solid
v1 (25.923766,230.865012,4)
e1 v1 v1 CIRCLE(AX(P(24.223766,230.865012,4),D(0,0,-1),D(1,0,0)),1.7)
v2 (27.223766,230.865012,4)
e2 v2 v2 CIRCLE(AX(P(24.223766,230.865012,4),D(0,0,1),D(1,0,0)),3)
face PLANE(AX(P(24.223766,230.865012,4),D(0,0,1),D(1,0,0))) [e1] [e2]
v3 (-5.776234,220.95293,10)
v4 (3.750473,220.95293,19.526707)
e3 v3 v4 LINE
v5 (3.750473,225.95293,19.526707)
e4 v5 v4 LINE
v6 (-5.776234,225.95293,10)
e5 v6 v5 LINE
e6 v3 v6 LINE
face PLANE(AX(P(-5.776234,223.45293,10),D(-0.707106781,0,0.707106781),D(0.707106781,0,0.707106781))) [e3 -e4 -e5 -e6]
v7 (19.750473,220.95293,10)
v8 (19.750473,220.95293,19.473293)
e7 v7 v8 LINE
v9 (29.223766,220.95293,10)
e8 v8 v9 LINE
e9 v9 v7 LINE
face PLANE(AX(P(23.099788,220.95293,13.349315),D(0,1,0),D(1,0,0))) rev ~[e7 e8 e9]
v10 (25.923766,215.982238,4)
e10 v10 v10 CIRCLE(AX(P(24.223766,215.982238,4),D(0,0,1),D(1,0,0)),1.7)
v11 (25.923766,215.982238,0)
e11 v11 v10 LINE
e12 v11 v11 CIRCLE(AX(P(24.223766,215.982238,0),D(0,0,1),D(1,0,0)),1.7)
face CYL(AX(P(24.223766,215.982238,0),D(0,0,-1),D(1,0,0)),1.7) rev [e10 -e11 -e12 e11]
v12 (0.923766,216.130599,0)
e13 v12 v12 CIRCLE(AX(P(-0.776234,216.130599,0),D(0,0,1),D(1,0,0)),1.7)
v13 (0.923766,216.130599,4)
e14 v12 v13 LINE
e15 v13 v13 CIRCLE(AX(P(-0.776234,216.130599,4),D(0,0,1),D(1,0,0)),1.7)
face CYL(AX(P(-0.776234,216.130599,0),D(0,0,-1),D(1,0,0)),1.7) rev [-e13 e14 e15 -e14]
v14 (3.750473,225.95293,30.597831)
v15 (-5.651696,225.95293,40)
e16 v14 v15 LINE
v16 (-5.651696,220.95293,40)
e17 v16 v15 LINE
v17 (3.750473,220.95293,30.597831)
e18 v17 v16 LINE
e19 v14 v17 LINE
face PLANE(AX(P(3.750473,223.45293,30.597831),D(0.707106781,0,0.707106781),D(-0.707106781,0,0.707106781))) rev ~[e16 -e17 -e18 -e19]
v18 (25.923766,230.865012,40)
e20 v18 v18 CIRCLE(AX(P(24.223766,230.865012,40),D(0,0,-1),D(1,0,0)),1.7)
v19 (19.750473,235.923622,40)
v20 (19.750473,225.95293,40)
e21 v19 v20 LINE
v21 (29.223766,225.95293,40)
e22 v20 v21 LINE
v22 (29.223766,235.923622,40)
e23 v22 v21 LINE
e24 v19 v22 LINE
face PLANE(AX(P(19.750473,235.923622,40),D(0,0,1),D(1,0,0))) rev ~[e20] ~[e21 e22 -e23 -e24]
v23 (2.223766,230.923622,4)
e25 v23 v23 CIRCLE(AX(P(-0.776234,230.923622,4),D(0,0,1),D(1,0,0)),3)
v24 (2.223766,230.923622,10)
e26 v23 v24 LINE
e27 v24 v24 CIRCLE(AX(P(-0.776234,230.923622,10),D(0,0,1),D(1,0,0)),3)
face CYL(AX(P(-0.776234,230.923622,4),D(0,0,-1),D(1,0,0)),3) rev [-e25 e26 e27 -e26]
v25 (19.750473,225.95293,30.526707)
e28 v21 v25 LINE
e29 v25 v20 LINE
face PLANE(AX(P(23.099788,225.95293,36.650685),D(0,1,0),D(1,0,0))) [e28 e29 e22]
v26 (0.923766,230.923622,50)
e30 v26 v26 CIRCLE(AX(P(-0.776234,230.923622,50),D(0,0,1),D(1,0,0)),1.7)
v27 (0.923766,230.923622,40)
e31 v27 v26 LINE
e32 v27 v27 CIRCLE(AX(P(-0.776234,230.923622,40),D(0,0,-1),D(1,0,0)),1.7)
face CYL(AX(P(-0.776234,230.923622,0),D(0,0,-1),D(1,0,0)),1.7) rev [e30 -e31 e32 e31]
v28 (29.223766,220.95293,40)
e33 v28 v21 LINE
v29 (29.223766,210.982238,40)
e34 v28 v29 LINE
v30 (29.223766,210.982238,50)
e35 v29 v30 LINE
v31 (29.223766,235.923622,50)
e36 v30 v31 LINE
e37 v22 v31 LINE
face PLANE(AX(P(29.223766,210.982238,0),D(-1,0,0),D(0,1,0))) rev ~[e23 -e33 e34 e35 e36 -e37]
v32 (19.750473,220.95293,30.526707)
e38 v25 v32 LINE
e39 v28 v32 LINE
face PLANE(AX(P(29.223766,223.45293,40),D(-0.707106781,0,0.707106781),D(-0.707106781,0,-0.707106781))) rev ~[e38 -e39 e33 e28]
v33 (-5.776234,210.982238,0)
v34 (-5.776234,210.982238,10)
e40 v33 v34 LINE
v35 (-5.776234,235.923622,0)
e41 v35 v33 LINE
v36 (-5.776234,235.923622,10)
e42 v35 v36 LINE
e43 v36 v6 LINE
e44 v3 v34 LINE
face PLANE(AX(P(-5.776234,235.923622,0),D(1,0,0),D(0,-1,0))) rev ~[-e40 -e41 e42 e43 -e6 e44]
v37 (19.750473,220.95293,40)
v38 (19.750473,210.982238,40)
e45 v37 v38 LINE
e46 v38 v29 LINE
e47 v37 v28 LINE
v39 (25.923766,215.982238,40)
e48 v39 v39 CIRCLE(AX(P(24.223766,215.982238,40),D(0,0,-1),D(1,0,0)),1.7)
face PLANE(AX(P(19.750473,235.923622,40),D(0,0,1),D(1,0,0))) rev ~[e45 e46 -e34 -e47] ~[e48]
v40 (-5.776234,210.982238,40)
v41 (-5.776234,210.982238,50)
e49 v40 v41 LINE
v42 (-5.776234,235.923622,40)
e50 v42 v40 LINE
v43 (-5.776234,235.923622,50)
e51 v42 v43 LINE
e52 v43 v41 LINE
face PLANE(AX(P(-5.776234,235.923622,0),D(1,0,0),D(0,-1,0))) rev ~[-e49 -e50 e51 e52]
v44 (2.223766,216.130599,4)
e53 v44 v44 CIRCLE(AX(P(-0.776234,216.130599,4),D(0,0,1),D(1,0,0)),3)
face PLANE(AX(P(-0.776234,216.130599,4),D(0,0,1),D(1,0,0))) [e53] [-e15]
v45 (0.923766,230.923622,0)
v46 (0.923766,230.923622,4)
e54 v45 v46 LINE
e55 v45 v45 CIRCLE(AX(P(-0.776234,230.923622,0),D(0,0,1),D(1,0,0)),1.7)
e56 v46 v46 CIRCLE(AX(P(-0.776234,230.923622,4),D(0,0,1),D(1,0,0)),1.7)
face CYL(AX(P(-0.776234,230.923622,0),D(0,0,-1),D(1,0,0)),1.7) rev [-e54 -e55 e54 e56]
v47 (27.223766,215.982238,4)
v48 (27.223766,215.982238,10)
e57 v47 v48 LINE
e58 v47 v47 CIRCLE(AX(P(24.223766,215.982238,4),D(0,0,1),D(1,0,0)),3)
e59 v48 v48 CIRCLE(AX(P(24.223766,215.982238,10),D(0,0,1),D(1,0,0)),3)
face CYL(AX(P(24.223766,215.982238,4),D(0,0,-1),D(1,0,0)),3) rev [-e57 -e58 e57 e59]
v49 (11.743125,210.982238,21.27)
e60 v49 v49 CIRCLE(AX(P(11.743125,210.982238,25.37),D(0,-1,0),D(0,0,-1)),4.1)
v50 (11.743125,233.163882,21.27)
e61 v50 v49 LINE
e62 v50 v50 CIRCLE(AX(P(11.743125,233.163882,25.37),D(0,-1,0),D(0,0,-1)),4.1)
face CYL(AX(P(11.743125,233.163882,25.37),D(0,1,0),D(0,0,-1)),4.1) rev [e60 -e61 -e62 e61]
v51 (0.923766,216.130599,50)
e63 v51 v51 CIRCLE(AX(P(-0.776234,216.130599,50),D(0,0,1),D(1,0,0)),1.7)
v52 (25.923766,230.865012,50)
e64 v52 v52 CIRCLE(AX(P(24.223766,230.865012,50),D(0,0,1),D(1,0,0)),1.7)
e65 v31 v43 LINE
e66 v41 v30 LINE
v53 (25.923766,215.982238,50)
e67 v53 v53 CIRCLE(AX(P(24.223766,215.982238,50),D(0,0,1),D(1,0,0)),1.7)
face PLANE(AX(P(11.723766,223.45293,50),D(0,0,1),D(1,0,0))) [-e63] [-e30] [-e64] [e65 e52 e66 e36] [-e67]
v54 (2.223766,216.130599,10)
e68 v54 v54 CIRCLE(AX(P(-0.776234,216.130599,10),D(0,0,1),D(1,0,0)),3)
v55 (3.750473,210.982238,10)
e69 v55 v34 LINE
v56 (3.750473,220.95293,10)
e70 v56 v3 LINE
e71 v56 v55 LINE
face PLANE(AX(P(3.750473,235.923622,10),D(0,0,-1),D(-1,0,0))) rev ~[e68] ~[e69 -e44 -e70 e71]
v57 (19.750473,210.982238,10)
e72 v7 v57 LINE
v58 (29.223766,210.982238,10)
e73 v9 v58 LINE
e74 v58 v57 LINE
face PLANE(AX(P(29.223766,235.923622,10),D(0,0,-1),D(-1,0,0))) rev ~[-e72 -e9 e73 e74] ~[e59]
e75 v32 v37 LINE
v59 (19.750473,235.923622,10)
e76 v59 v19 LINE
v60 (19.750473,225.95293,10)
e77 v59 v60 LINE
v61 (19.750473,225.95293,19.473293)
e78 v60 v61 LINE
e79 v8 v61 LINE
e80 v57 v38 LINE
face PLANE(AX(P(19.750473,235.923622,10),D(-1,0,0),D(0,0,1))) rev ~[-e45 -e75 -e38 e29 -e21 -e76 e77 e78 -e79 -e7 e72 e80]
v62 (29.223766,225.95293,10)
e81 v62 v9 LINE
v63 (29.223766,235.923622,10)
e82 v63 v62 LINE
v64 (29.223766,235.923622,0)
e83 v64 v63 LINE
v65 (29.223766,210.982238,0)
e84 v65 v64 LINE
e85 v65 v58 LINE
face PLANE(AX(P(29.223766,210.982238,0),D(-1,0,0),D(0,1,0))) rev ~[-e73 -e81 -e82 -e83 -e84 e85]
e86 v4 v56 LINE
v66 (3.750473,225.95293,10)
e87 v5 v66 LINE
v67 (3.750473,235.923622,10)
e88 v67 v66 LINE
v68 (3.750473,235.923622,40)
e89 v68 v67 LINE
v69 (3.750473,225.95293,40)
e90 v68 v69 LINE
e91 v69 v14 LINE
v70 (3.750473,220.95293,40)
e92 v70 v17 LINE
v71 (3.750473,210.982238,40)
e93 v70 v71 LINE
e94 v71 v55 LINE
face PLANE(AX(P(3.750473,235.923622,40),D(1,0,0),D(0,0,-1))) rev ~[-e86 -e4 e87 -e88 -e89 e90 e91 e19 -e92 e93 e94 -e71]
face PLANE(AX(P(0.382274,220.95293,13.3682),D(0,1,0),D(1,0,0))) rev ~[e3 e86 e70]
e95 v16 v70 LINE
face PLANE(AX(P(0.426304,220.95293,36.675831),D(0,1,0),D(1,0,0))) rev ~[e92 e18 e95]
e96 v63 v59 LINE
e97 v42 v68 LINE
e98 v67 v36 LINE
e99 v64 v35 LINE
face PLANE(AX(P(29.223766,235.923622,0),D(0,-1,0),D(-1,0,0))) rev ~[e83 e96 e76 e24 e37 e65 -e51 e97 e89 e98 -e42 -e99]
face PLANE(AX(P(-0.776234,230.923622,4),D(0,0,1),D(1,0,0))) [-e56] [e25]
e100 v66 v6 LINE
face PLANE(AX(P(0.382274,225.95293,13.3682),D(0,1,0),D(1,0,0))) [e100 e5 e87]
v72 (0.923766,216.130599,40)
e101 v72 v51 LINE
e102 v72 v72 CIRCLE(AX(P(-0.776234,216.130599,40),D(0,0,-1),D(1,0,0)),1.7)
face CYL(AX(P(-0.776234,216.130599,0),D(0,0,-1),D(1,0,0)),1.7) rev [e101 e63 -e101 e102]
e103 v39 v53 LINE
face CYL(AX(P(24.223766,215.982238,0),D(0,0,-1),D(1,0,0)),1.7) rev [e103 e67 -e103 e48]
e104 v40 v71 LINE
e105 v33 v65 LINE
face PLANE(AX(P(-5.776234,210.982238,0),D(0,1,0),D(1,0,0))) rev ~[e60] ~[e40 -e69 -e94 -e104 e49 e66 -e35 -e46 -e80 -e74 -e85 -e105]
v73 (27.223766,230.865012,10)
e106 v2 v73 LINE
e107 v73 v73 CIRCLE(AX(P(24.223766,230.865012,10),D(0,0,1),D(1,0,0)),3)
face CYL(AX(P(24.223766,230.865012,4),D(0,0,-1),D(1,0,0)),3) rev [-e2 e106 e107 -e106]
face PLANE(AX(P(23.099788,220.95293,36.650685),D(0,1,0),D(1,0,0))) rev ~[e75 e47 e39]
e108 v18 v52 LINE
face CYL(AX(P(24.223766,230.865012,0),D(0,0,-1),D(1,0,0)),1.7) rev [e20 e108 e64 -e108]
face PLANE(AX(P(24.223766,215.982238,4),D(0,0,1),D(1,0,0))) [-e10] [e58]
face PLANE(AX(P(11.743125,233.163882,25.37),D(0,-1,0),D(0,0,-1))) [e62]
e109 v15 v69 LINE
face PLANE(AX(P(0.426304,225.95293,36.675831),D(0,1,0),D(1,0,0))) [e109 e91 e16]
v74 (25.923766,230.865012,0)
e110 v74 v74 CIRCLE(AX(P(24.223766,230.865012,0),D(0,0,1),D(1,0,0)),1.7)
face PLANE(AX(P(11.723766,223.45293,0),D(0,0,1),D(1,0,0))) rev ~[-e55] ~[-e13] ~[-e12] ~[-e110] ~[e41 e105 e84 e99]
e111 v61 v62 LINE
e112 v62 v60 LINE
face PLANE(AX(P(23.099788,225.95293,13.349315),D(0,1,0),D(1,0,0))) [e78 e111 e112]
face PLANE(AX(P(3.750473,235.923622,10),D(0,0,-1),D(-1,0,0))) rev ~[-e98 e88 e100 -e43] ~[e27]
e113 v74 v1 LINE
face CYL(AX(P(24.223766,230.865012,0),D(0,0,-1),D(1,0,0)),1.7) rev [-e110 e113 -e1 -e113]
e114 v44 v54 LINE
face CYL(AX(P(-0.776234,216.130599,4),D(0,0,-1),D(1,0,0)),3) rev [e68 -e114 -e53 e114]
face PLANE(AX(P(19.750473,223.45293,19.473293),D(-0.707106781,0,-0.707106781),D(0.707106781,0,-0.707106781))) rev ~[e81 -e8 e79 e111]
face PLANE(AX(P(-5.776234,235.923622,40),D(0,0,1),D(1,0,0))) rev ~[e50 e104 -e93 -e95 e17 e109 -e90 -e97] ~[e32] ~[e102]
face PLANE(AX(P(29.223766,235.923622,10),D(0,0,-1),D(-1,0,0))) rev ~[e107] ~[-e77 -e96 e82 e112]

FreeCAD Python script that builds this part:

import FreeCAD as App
import Part
import Sketcher
from FreeCAD import Vector
Q = App.Units.Quantity


def add_polygon(sketch, points):
    """Adds a closed chain of lines whose ends are joined by coincident constraints."""
    first, n = sketch.GeometryCount, len(points)
    for a, b in zip(points, points[1:] + points[:1]):
        sketch.addGeometry(Part.LineSegment(App.Vector(*a, 0), App.Vector(*b, 0)), False)
    for i in range(n):
        sketch.addConstraint(Sketcher.Constraint("Coincident", first + i, 2, first + (i + 1) % n, 1))

doc = App.newDocument("Part")
body = doc.addObject("PartDesign::Body", "Body")

sketch1 = body.newObject("Sketcher::SketchObject", "Sketch")
sketch1.AttachmentSupport = (doc.getObject("XY_Plane"), [""])
sketch1.MapMode = "FlatFace"
add_polygon(sketch1, [(29.2, 235.9), (-5.8, 235.9), (-5.8, 211), (29.2, 211)])
sketch1.addGeometry(Part.Circle(Vector(-0.8, 216.1, 0), Vector(0, 0, 1), 1.7), False)
sketch1.addGeometry(Part.Circle(Vector(24.2, 216, 0), Vector(0, 0, 1), 1.7), False)
sketch1.addGeometry(Part.Circle(Vector(-0.8, 230.9, 0), Vector(0, 0, 1), 1.7), False)
sketch1.addGeometry(Part.Circle(Vector(24.2, 230.9, 0), Vector(0, 0, 1), 1.7), False)
sketch1.addConstraint([
    Sketcher.Constraint("Horizontal", 0),
    Sketcher.Constraint("Vertical", 1),
    Sketcher.Constraint("Horizontal", 2),
    Sketcher.Constraint("Vertical", 3),
    Sketcher.Constraint("Equal", 4, 5),
    Sketcher.Constraint("Equal", 5, 6),
    Sketcher.Constraint("Equal", 6, 7),
    Sketcher.Constraint("Vertical", 4, 3, 6, 3),
    Sketcher.Constraint("Vertical", 5, 3, 7, 3),
    Sketcher.Constraint("Diameter", 4, Q("3.4 mm")),
    Sketcher.Constraint("DistanceX", 0, 2, 0, 1, Q("35 mm")),
    Sketcher.Constraint("DistanceX", 4, 3, 5, 3, Q("25 mm")),
    Sketcher.Constraint("DistanceX", 0, 2, 6, 3, Q("5 mm")),
    Sketcher.Constraint("DistanceY", 6, 3, 0, 2, Q("5 mm")),
    Sketcher.Constraint("DistanceY", 1, 2, 5, 3, Q("5 mm")),
    Sketcher.Constraint("DistanceY", -1, 1, 4, 3, Q("216.130599 mm")),
    Sketcher.Constraint("DistanceY", 1, 2, 1, 1, Q("24.941384 mm")),
    Sketcher.Constraint("DistanceY", -1, 1, 5, 3, Q("215.982238 mm")),
    Sketcher.Constraint("DistanceY", 7, 3, 6, 3, Q("0.05861 mm")),
    Sketcher.Constraint("DistanceX", 4, 3, -1, 1, Q("0.776234 mm")),
])
pad1 = body.newObject("PartDesign::Pad", "Pad")
pad1.Profile = sketch1
pad1.Length = 50

sketch2 = body.newObject("Sketcher::SketchObject", "Sketch001")
sketch2.AttachmentSupport = (doc.getObject("XZ_Plane"), [""])
sketch2.MapMode = "FlatFace"
sketch2.AttachmentOffset = App.Placement(Vector(0, 0, -235.923622), App.Rotation())
add_polygon(sketch2, [(4, 40), (4, 10), (-6, 10), (-6, 40)])
add_polygon(sketch2, [(29, 10), (20, 10), (20, 40), (29, 40)])
sketch2.addConstraint([
    Sketcher.Constraint("Vertical", 0),
    Sketcher.Constraint("Horizontal", 1),
    Sketcher.Constraint("Vertical", 2),
    Sketcher.Constraint("Horizontal", 3),
    Sketcher.Constraint("Horizontal", 4),
    Sketcher.Constraint("Vertical", 5),
    Sketcher.Constraint("Horizontal", 6),
    Sketcher.Constraint("Vertical", 7),
    Sketcher.Constraint("Horizontal", 1, 2, 4, 2),
    Sketcher.Constraint("Horizontal", 3, 2, 5, 2),
    Sketcher.Constraint("DistanceY", 0, 2, 0, 1, Q("30 mm")),
    Sketcher.Constraint("DistanceY", -1, 1, 0, 2, Q("10 mm")),
    Sketcher.Constraint("DistanceX", 0, 2, 4, 2, Q("16 mm")),
    Sketcher.Constraint("DistanceX", 2, 2, 6, 2, Q("35 mm")),
    Sketcher.Constraint("DistanceX", 1, 2, 1, 1, Q("9.526707 mm")),
    Sketcher.Constraint("DistanceX", -1, 1, 0, 2, Q("3.750473 mm")),
])
pocket1 = body.newObject("PartDesign::Pocket", "Pocket")
pocket1.Profile = sketch2
pocket1.Length = 51
pocket1.Reversed = True

sketch3 = body.newObject("Sketcher::SketchObject", "Sketch002")
sketch3.AttachmentSupport = (doc.getObject("XZ_Plane"), [""])
sketch3.MapMode = "FlatFace"
sketch3.AttachmentOffset = App.Placement(Vector(0, 0, -233.163882), App.Rotation())
sketch3.addGeometry(Part.Circle(Vector(11.7, 25.4, 0), Vector(0, 0, 1), 4.1), False)
sketch3.addConstraint([
    Sketcher.Constraint("Diameter", 0, Q("8.2 mm")),
    Sketcher.Constraint("DistanceY", -1, 1, 0, 3, Q("25.37 mm")),
    Sketcher.Constraint("DistanceX", -1, 1, 0, 3, Q("11.743125 mm")),
])
pocket2 = body.newObject("PartDesign::Pocket", "Pocket001")
pocket2.Profile = sketch3
pocket2.Length = 22.181644
pocket2.Reversed = True

sketch4 = body.newObject("Sketcher::SketchObject", "Sketch003")
sketch4.AttachmentSupport = (doc.getObject("XY_Plane"), [""])
sketch4.MapMode = "FlatFace"
sketch4.AttachmentOffset = App.Placement(Vector(0, 0, 4), App.Rotation())
sketch4.addGeometry([
    Part.Circle(Vector(24.2, 230.9, 0), Vector(0, 0, 1), 3),
    Part.Circle(Vector(24.2, 216, 0), Vector(0, 0, 1), 3),
    Part.Circle(Vector(24.2, 216, 0), Vector(0, 0, 1), 1.7),
    Part.Circle(Vector(-0.8, 216.1, 0), Vector(0, 0, 1), 3),
    Part.Circle(Vector(-0.8, 216.1, 0), Vector(0, 0, 1), 1.7),
    Part.Circle(Vector(-0.8, 230.9, 0), Vector(0, 0, 1), 3),
    Part.Circle(Vector(-0.8, 230.9, 0), Vector(0, 0, 1), 1.7),
], False)
sketch4.addConstraint([
    Sketcher.Constraint("Coincident", 2, 3, 1, 3),
    Sketcher.Constraint("Coincident", 4, 3, 3, 3),
    Sketcher.Constraint("Coincident", 6, 3, 5, 3),
    Sketcher.Constraint("Equal", 0, 1),
    Sketcher.Constraint("Equal", 1, 3),
    Sketcher.Constraint("Equal", 2, 4),
    Sketcher.Constraint("Equal", 3, 5),
    Sketcher.Constraint("Equal", 4, 6),
    Sketcher.Constraint("Vertical", 0, 3, 1, 3),
    Sketcher.Constraint("Vertical", 4, 3, 5, 3),
    Sketcher.Constraint("Diameter", 0, Q("6 mm")),
    Sketcher.Constraint("Diameter", 2, Q("3.4 mm")),
    Sketcher.Constraint("DistanceX", 3, 3, 1, 3, Q("25 mm")),
    Sketcher.Constraint("DistanceY", -1, 1, 3, 3, Q("216.130599 mm")),
    Sketcher.Constraint("DistanceY", -1, 1, 1, 3, Q("215.982238 mm")),
    Sketcher.Constraint("DistanceY", 0, 3, 5, 3, Q("0.05861 mm")),
    Sketcher.Constraint("DistanceX", -1, 1, 0, 3, Q("24.223766 mm")),
    Sketcher.Constraint("DistanceY", -1, 1, 0, 3, Q("230.865012 mm")),
])
pocket3 = body.newObject("PartDesign::Pocket", "Pocket002")
pocket3.Profile = sketch4
pocket3.Length = 6
pocket3.Reversed = True

sketch5 = body.newObject("Sketcher::SketchObject", "Sketch004")
sketch5.AttachmentSupport = (doc.getObject("XZ_Plane"), [""])
sketch5.MapMode = "FlatFace"
sketch5.AttachmentOffset = App.Placement(Vector(0, 0, -223.45293), App.Rotation())
add_polygon(sketch5, [(4, 31), (-6, 40), (4, 40)])
add_polygon(sketch5, [(20, 40), (29, 40), (20, 31)])
add_polygon(sketch5, [(20, 10), (20, 19), (29, 10)])
add_polygon(sketch5, [(4, 10), (-6, 10), (4, 20)])
sketch5.addConstraint([
    Sketcher.Constraint("Horizontal", 1),
    Sketcher.Constraint("Vertical", 2),
    Sketcher.Constraint("Horizontal", 3),
    Sketcher.Constraint("Vertical", 5),
    Sketcher.Constraint("Vertical", 6),
    Sketcher.Constraint("Horizontal", 8),
    Sketcher.Constraint("Horizontal", 9),
    Sketcher.Constraint("Vertical", 11),
    Sketcher.Constraint("Perpendicular", 0, 4),
    Sketcher.Constraint("Perpendicular", 4, 7),
    Sketcher.Constraint("Perpendicular", 7, 10),
    Sketcher.Constraint("Horizontal", 1, 2, 3, 2),
    Sketcher.Constraint("Horizontal", 8, 2, 9, 2),
    Sketcher.Constraint("Vertical", 5, 2, 6, 2),
    Sketcher.Constraint("Vertical", 3, 2, 7, 2),
    Sketcher.Constraint("Vertical", 2, 2, 10, 2),
    Sketcher.Constraint("Equal", 1, 2),
    Sketcher.Constraint("DistanceY", -1, 1, 0, 2, Q("40 mm")),
    Sketcher.Constraint("DistanceY", -1, 1, 7, 2, Q("10 mm")),
    Sketcher.Constraint("DistanceX", 2, 2, 4, 2, Q("16 mm")),
    Sketcher.Constraint("DistanceY", 10, 2, 4, 2, Q("11 mm")),
    Sketcher.Constraint("Distance", 10, Q("13.472798 mm")),
    Sketcher.Constraint("DistanceX", 1, 1, 1, 2, Q("9.402169 mm")),
    Sketcher.Constraint("DistanceX", 0, 2, -1, 1, Q("5.651696 mm")),
])
pad2 = body.newObject("PartDesign::Pad", "Pad001")
pad2.Profile = sketch5
pad2.Length = 5
pad2.Midplane = True

doc.recompute()
